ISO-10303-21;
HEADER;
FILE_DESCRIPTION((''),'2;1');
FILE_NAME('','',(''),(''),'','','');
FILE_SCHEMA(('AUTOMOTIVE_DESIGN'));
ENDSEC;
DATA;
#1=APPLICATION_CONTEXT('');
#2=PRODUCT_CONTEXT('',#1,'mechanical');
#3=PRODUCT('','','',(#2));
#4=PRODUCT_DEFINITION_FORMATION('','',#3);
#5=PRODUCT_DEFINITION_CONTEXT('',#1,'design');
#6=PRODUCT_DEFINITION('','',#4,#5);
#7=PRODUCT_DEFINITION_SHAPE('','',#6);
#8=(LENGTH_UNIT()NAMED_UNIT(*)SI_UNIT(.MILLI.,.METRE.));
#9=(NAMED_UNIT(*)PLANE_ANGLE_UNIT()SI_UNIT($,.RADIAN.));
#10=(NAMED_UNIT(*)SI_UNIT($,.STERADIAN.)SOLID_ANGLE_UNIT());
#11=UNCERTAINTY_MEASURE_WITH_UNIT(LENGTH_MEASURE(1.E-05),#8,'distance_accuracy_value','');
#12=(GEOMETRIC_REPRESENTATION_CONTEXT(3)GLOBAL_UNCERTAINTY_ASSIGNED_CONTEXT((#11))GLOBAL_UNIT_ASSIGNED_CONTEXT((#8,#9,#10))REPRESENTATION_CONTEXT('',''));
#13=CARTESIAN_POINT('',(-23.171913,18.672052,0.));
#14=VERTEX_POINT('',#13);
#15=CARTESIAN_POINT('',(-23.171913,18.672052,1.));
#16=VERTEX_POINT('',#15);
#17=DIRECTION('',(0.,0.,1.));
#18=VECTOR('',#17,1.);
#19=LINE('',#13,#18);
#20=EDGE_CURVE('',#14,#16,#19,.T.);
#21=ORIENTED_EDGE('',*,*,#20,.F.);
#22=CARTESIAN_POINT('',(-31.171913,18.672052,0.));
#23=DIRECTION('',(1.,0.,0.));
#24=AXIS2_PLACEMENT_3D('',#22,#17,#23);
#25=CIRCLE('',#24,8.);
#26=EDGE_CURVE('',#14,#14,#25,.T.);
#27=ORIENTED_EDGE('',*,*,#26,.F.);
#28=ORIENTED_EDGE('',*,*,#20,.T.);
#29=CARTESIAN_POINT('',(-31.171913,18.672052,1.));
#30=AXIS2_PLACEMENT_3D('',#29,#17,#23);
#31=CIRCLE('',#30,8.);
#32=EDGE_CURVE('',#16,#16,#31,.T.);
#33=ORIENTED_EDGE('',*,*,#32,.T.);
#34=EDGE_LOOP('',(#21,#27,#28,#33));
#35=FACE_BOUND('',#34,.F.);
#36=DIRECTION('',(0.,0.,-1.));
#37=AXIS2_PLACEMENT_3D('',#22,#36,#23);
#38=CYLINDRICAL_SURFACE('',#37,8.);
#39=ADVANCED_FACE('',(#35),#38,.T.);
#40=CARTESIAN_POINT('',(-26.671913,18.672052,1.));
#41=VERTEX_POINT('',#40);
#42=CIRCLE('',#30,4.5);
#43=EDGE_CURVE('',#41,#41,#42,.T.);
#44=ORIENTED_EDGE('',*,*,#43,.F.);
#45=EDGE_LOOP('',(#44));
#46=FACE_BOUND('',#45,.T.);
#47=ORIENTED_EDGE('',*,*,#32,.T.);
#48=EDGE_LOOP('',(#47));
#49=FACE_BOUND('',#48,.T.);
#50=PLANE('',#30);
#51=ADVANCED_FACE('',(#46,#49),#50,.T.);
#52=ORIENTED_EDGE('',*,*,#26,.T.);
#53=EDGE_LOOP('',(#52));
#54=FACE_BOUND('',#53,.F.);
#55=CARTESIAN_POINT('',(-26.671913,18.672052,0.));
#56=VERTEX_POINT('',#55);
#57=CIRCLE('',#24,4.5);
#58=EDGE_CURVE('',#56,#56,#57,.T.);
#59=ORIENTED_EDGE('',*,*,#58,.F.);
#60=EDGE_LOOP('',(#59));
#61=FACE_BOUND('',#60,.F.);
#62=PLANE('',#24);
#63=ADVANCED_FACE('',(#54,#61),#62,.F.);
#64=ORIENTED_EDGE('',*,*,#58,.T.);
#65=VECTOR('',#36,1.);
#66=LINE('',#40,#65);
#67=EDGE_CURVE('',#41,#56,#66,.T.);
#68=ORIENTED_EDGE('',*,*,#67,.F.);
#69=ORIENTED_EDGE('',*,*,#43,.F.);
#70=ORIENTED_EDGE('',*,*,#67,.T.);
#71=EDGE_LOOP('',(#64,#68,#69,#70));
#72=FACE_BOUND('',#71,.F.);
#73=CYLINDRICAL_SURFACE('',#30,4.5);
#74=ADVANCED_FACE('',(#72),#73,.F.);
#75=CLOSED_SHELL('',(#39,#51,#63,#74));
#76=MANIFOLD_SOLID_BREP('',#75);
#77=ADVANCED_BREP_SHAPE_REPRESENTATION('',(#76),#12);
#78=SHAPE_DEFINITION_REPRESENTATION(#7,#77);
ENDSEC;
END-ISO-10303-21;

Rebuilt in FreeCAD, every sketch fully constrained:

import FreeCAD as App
import Part
import Sketcher

V = App.Vector

doc = App.newDocument("Part")
body = doc.addObject("PartDesign::Body", "Body")

# Sketch on XY plane
sketch1 = body.newObject("Sketcher::SketchObject", "Sketch")
sketch1.AttachmentSupport = (doc.getObject("XY_Plane"), [""])
sketch1.MapMode = "FlatFace"
sketch1.addGeometry(Part.Circle(V(-31.171913, 18.672052, 0), V(0, 0, 1), 8), False)
sketch1.addConstraint([
    Sketcher.Constraint("Diameter", 0, 16.0),
    Sketcher.Constraint("DistanceY", -1, 1, 0, 3, 18.672052),
    Sketcher.Constraint("DistanceX", 0, 3, -1, 1, 31.171913),
])
pad1 = body.newObject("PartDesign::Pad", "Pad")
pad1.Profile = sketch1
pad1.Length = 1

# Sketch on XY plane
sketch2 = body.newObject("Sketcher::SketchObject", "Sketch001")
sketch2.AttachmentSupport = (doc.getObject("XY_Plane"), [""])
sketch2.MapMode = "FlatFace"
sketch2.AttachmentOffset = App.Placement(V(0, 0, 1), App.Rotation())
sketch2.addGeometry(Part.Circle(V(-31.171913, 18.672052, 0), V(0, 0, 1), 4.5), False)
sketch2.addConstraint([
    Sketcher.Constraint("Diameter", 0, 9.0),
    Sketcher.Constraint("DistanceY", -1, 1, 0, 3, 18.672052),
    Sketcher.Constraint("DistanceX", 0, 3, -1, 1, 31.171913),
])
pocket1 = body.newObject("PartDesign::Pocket", "Pocket")
pocket1.Profile = sketch2
pocket1.Length = 1

doc.recompute()
